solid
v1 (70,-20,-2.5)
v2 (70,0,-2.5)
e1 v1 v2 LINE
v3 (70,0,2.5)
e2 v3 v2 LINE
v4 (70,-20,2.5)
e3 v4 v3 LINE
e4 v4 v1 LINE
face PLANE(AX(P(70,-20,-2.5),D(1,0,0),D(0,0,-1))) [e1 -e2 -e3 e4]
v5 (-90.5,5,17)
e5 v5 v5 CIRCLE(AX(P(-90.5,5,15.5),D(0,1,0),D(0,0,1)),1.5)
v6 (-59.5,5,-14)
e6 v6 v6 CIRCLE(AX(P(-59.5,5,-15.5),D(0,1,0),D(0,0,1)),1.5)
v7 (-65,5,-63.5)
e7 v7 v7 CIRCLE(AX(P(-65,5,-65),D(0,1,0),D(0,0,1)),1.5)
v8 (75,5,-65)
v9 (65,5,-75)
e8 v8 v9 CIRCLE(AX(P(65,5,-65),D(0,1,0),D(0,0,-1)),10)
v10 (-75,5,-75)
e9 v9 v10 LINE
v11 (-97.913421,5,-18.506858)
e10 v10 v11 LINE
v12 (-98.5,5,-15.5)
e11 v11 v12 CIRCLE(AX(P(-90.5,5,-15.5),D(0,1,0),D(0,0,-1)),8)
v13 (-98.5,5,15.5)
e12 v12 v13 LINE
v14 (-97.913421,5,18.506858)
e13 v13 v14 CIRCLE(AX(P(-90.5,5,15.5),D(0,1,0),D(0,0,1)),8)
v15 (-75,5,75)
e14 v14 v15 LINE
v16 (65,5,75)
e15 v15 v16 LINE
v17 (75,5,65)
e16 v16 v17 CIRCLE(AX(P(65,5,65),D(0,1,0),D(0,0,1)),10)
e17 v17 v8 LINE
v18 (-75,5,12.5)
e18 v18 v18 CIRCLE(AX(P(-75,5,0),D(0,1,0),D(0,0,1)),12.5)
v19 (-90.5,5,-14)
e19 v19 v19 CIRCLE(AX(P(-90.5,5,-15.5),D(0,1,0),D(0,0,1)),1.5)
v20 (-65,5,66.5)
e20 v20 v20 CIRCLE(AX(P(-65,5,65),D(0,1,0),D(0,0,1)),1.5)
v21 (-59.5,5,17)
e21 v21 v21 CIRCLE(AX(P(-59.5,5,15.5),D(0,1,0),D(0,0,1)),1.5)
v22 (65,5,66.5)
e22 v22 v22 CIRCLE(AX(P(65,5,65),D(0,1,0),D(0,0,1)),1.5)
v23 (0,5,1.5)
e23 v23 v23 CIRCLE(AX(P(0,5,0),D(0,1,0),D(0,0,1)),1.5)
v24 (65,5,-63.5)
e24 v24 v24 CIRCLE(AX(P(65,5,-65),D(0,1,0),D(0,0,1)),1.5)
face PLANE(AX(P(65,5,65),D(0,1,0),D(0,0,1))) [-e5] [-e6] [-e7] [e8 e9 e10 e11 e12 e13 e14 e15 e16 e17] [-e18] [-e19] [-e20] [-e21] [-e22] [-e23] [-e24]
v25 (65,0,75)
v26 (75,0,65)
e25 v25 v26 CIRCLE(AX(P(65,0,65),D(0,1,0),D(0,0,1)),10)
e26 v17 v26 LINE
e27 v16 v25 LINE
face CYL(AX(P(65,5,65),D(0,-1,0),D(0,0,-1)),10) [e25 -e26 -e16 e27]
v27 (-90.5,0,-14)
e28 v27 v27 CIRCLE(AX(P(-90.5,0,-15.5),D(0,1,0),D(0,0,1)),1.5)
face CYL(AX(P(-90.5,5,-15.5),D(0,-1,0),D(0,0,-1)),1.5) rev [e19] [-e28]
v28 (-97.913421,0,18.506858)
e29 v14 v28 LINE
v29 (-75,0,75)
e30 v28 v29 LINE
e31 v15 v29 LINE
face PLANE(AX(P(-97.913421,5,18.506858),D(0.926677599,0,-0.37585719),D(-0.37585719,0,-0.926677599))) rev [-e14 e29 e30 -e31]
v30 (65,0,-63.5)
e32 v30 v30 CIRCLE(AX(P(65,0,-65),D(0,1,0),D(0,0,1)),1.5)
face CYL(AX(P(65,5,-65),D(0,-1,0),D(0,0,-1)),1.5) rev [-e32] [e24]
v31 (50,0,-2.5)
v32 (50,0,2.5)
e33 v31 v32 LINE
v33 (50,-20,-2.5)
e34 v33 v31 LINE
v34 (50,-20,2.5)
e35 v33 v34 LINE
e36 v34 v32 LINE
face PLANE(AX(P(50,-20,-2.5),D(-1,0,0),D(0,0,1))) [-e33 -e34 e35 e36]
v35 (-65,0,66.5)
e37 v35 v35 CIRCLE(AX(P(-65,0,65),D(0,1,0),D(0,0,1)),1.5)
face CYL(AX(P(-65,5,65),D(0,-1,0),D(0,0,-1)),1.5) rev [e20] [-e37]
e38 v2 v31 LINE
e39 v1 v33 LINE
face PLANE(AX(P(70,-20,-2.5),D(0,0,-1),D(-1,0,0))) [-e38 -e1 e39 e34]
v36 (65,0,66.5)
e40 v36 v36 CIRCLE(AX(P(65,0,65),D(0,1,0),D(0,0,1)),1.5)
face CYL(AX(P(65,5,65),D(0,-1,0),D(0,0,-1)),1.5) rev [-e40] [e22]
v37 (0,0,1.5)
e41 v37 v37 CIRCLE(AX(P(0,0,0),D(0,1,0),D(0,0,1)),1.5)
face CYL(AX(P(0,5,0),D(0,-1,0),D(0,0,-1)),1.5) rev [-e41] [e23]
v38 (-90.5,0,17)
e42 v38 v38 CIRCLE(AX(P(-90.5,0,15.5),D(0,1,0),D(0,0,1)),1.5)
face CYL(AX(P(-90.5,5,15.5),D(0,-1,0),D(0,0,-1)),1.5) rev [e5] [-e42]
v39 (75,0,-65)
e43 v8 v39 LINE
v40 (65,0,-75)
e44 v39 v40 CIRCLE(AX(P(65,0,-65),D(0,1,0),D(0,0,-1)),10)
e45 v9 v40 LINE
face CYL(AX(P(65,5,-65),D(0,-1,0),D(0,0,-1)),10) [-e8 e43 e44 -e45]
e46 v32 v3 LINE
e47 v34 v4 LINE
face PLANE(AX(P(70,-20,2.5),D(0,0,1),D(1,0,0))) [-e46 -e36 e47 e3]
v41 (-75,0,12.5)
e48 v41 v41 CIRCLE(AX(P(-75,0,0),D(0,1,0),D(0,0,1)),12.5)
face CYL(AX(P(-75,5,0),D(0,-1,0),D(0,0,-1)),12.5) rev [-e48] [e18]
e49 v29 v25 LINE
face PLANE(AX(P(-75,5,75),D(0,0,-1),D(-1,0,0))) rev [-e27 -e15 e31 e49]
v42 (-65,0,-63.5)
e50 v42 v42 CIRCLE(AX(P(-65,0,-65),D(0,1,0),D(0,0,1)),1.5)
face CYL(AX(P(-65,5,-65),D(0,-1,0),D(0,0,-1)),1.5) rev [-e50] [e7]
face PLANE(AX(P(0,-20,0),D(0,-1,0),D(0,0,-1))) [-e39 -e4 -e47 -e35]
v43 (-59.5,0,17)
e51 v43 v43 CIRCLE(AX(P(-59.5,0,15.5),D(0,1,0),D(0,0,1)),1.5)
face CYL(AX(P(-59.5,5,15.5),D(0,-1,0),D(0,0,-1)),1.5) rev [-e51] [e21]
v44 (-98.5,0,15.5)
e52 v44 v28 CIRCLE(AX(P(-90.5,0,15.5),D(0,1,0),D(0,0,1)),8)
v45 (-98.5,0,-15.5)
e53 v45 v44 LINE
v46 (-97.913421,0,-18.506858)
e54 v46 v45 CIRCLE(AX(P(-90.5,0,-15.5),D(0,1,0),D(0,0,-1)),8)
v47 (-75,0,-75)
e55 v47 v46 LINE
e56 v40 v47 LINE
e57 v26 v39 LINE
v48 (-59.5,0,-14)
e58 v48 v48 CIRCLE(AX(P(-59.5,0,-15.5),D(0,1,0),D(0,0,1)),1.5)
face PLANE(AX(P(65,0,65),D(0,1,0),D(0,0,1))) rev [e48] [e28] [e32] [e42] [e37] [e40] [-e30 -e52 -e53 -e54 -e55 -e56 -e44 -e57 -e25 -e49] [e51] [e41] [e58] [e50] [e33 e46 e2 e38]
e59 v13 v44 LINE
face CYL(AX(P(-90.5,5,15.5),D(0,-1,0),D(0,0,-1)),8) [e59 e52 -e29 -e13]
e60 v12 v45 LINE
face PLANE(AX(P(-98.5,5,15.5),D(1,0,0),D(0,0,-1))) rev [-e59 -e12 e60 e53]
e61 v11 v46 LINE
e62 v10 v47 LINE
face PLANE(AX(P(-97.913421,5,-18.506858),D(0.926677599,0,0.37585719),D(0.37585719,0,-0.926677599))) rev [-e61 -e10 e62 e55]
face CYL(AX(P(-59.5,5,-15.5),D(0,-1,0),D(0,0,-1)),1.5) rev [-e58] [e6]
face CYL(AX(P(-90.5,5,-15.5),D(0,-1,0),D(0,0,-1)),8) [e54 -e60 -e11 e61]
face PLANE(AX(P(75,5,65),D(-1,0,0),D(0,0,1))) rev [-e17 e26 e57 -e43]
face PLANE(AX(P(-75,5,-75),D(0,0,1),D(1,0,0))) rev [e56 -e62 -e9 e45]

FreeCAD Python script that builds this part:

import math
import FreeCAD as App
import Part
import Sketcher

doc = App.newDocument("Part")
params = doc.addObject("Spreadsheet::Sheet", "Params")
for row, (alias, value) in enumerate([
    ("sketch1_diameter", "3 mm"),
    ("sketch1_diameter2", "25 mm"),
    ("sketch1_radius", "10 mm"),
    ("sketch1_radius2", "8 mm"),
    ("sketch1_width", "140 mm"),
    ("pad1_length", "5 mm"),
    ("sketch2_width", "20 mm"),
    ("sketch2_height", "5 mm"),
    ("pad2_length", "25 mm"),
], start=1):
    params.set(f"A{row}", alias)
    params.set(f"B{row}", "=" + value)
    params.setAlias(f"B{row}", alias)

body = doc.addObject("PartDesign::Body", "Body")

# Sketch on XZ plane
sketch1 = body.newObject("Sketcher::SketchObject", "Sketch")
sketch1.AttachmentSupport = (doc.getObject("XZ_Plane"), [""])
sketch1.MapMode = "FlatFace"
sketch1.addGeometry(Part.LineSegment(App.Vector(-75, 75, 0), App.Vector(65, 75, 0)), False)
sketch1.addGeometry(Part.ArcOfCircle(Part.Circle(App.Vector(65, 65, 0), App.Vector(0, 0, 1), 10), math.radians(0), math.radians(90)), False)
sketch1.addGeometry(Part.LineSegment(App.Vector(75, 65, 0), App.Vector(75, -65, 0)), False)
sketch1.addGeometry(Part.ArcOfCircle(Part.Circle(App.Vector(65, -65, 0), App.Vector(0, 0, 1), 10), math.radians(-90), math.radians(0)), False)
sketch1.addGeometry(Part.LineSegment(App.Vector(65, -75, 0), App.Vector(-75, -75, 0)), False)
sketch1.addGeometry(Part.LineSegment(App.Vector(-75, -75, 0), App.Vector(-97.9, -18.5, 0)), False)
sketch1.addGeometry(Part.ArcOfCircle(Part.Circle(App.Vector(-90.5, -15.5, 0), App.Vector(0, 0, 1), 8), math.radians(-180), math.radians(-158)), False)
sketch1.addGeometry(Part.LineSegment(App.Vector(-98.5, -15.5, 0), App.Vector(-98.5, 15.5, 0)), False)
sketch1.addGeometry(Part.ArcOfCircle(Part.Circle(App.Vector(-90.5, 15.5, 0), App.Vector(0, 0, 1), 8), math.radians(158), math.radians(180)), False)
sketch1.addGeometry(Part.LineSegment(App.Vector(-97.9, 18.5, 0), App.Vector(-75, 75, 0)), False)
sketch1.addGeometry(Part.Circle(App.Vector(-65, 65, 0), App.Vector(0, 0, 1), 1.5), False)
sketch1.addGeometry(Part.Circle(App.Vector(-90.5, 15.5, 0), App.Vector(0, 0, 1), 1.5), False)
sketch1.addGeometry(Part.Circle(App.Vector(-59.5, 15.5, 0), App.Vector(0, 0, 1), 1.5), False)
sketch1.addGeometry(Part.Circle(App.Vector(65, 65, 0), App.Vector(0, 0, 1), 1.5), False)
sketch1.addGeometry(Part.Circle(App.Vector(-75, 0, 0), App.Vector(0, 0, 1), 12.5), False)
sketch1.addGeometry(Part.Circle(App.Vector(-90.5, -15.5, 0), App.Vector(0, 0, 1), 1.5), False)
sketch1.addGeometry(Part.Circle(App.Vector(-59.5, -15.5, 0), App.Vector(0, 0, 1), 1.5), False)
sketch1.addGeometry(Part.Circle(App.Vector(-65, -65, 0), App.Vector(0, 0, 1), 1.5), False)
sketch1.addGeometry(Part.Circle(App.Vector(0, 0, 0), App.Vector(0, 0, 1), 1.5), False)
sketch1.addGeometry(Part.Circle(App.Vector(65, -65, 0), App.Vector(0, 0, 1), 1.5), False)
sketch1.addConstraint(Sketcher.Constraint("Tangent", 0, 2, 1, 2))
sketch1.addConstraint(Sketcher.Constraint("Tangent", 1, 1, 2, 1))
sketch1.addConstraint(Sketcher.Constraint("Tangent", 2, 2, 3, 2))
sketch1.addConstraint(Sketcher.Constraint("Tangent", 3, 1, 4, 1))
sketch1.addConstraint(Sketcher.Constraint("Coincident", 4, 2, 5, 1))
sketch1.addConstraint(Sketcher.Constraint("Tangent", 5, 2, 6, 2))
sketch1.addConstraint(Sketcher.Constraint("Tangent", 6, 1, 7, 1))
sketch1.addConstraint(Sketcher.Constraint("Tangent", 7, 2, 8, 2))
sketch1.addConstraint(Sketcher.Constraint("Tangent", 8, 1, 9, 1))
sketch1.addConstraint(Sketcher.Constraint("Coincident", 9, 2, 0, 1))
sketch1.addConstraint(Sketcher.Constraint("Horizontal", 0))
sketch1.addConstraint(Sketcher.Constraint("Vertical", 2))
sketch1.addConstraint(Sketcher.Constraint("Horizontal", 4))
sketch1.addConstraint(Sketcher.Constraint("Vertical", 7))
sketch1.addConstraint(Sketcher.Constraint("Coincident", 18, 3, -1, 1))
sketch1.addConstraint(Sketcher.Constraint("Coincident", 11, 3, 8, 3))
sketch1.addConstraint(Sketcher.Constraint("Coincident", 13, 3, 1, 3))
sketch1.addConstraint(Sketcher.Constraint("Coincident", 15, 3, 6, 3))
sketch1.addConstraint(Sketcher.Constraint("Coincident", 19, 3, 3, 3))
sketch1.addConstraint(Sketcher.Constraint("Equal", 1, 3))
sketch1.addConstraint(Sketcher.Constraint("Equal", 6, 8))
sketch1.addConstraint(Sketcher.Constraint("Equal", 10, 11))
sketch1.addConstraint(Sketcher.Constraint("Equal", 11, 12))
sketch1.addConstraint(Sketcher.Constraint("Equal", 12, 13))
sketch1.addConstraint(Sketcher.Constraint("Equal", 13, 15))
sketch1.addConstraint(Sketcher.Constraint("Equal", 15, 16))
sketch1.addConstraint(Sketcher.Constraint("Equal", 16, 17))
sketch1.addConstraint(Sketcher.Constraint("Equal", 17, 18))
sketch1.addConstraint(Sketcher.Constraint("Equal", 18, 19))
sketch1.addConstraint(Sketcher.Constraint("Symmetric", 3, 3, 10, 3, -1, 1))
sketch1.addConstraint(Sketcher.Constraint("Symmetric", 1, 3, 17, 3, -1, 1))
sketch1.addConstraint(Sketcher.Constraint("Symmetric", 12, 3, 16, 3, -1))
sketch1.addConstraint(Sketcher.Constraint("Symmetric", 5, 2, 8, 1, -1))
sketch1.addConstraint(Sketcher.Constraint("PointOnObject", 14, 3, -1))
sketch1.addConstraint(Sketcher.Constraint("Horizontal", 1, 3, 10, 3))
sketch1.addConstraint(Sketcher.Constraint("Horizontal", 11, 3, 12, 3))
sketch1.addConstraint(Sketcher.Constraint("Vertical", 14, 3, 4, 2))
sketch1.addConstraint(Sketcher.Constraint("Diameter", 10, 3.0))
sketch1.addConstraint(Sketcher.Constraint("Diameter", 14, 25.0))
sketch1.addConstraint(Sketcher.Constraint("Radius", 1, 10.0))
sketch1.addConstraint(Sketcher.Constraint("Radius", 6, 8.0))
sketch1.addConstraint(Sketcher.Constraint("DistanceX", 0, 1, 0, 2, 140.0))
sketch1.addConstraint(Sketcher.Constraint("DistanceY", 2, 2, 2, 1, 130.0))
sketch1.addConstraint(Sketcher.Constraint("DistanceY", 7, 1, 7, 2, 31.0))
sketch1.addConstraint(Sketcher.Constraint("DistanceX", -1, 1, 1, 3, 65.0))
sketch1.addConstraint(Sketcher.Constraint("DistanceX", 8, 3, 12, 3, 31.0))
sketch1.addConstraint(Sketcher.Constraint("DistanceX", 6, 3, -1, 1, 90.5))
sketch1.setExpression("Constraints[37]", "Params.sketch1_diameter")
sketch1.setExpression("Constraints[38]", "Params.sketch1_diameter2")
sketch1.setExpression("Constraints[39]", "Params.sketch1_radius")
sketch1.setExpression("Constraints[40]", "Params.sketch1_radius2")
sketch1.setExpression("Constraints[41]", "Params.sketch1_width")
pad1 = body.newObject("PartDesign::Pad", "Pad")
pad1.Profile = sketch1
pad1.setExpression("Length", "Params.pad1_length")
pad1.Reversed = True

# Sketch on XZ plane
sketch2 = body.newObject("Sketcher::SketchObject", "Sketch001")
sketch2.AttachmentSupport = (doc.getObject("XZ_Plane"), [""])
sketch2.MapMode = "FlatFace"
sketch2.AttachmentOffset = App.Placement(App.Vector(0, 0, -5), App.Rotation())
sketch2.addGeometry(Part.LineSegment(App.Vector(50, -2, 0), App.Vector(50, 2, 0)), False)
sketch2.addGeometry(Part.LineSegment(App.Vector(50, 2, 0), App.Vector(70, 2, 0)), False)
sketch2.addGeometry(Part.LineSegment(App.Vector(70, 2, 0), App.Vector(70, -2, 0)), False)
sketch2.addGeometry(Part.LineSegment(App.Vector(70, -2, 0), App.Vector(50, -2, 0)), False)
sketch2.addConstraint(Sketcher.Constraint("Coincident", 0, 2, 1, 1))
sketch2.addConstraint(Sketcher.Constraint("Coincident", 1, 2, 2, 1))
sketch2.addConstraint(Sketcher.Constraint("Coincident", 2, 2, 3, 1))
sketch2.addConstraint(Sketcher.Constraint("Coincident", 3, 2, 0, 1))
sketch2.addConstraint(Sketcher.Constraint("Vertical", 0))
sketch2.addConstraint(Sketcher.Constraint("Horizontal", 1))
sketch2.addConstraint(Sketcher.Constraint("Vertical", 2))
sketch2.addConstraint(Sketcher.Constraint("Horizontal", 3))
sketch2.addConstraint(Sketcher.Constraint("DistanceX", 1, 1, 1, 2, 20.0))
sketch2.addConstraint(Sketcher.Constraint("DistanceY", 0, 1, 0, 2, 5.0))
sketch2.addConstraint(Sketcher.Constraint("DistanceX", -1, 1, 0, 2, 50.0))
sketch2.addConstraint(Sketcher.Constraint("DistanceY", -1, 1, 0, 2, 2.5))
sketch2.setExpression("Constraints[8]", "Params.sketch2_width")
sketch2.setExpression("Constraints[9]", "Params.sketch2_height")
pad2 = body.newObject("PartDesign::Pad", "Pad001")
pad2.Profile = sketch2
pad2.setExpression("Length", "Params.pad2_length")

doc.recompute()
